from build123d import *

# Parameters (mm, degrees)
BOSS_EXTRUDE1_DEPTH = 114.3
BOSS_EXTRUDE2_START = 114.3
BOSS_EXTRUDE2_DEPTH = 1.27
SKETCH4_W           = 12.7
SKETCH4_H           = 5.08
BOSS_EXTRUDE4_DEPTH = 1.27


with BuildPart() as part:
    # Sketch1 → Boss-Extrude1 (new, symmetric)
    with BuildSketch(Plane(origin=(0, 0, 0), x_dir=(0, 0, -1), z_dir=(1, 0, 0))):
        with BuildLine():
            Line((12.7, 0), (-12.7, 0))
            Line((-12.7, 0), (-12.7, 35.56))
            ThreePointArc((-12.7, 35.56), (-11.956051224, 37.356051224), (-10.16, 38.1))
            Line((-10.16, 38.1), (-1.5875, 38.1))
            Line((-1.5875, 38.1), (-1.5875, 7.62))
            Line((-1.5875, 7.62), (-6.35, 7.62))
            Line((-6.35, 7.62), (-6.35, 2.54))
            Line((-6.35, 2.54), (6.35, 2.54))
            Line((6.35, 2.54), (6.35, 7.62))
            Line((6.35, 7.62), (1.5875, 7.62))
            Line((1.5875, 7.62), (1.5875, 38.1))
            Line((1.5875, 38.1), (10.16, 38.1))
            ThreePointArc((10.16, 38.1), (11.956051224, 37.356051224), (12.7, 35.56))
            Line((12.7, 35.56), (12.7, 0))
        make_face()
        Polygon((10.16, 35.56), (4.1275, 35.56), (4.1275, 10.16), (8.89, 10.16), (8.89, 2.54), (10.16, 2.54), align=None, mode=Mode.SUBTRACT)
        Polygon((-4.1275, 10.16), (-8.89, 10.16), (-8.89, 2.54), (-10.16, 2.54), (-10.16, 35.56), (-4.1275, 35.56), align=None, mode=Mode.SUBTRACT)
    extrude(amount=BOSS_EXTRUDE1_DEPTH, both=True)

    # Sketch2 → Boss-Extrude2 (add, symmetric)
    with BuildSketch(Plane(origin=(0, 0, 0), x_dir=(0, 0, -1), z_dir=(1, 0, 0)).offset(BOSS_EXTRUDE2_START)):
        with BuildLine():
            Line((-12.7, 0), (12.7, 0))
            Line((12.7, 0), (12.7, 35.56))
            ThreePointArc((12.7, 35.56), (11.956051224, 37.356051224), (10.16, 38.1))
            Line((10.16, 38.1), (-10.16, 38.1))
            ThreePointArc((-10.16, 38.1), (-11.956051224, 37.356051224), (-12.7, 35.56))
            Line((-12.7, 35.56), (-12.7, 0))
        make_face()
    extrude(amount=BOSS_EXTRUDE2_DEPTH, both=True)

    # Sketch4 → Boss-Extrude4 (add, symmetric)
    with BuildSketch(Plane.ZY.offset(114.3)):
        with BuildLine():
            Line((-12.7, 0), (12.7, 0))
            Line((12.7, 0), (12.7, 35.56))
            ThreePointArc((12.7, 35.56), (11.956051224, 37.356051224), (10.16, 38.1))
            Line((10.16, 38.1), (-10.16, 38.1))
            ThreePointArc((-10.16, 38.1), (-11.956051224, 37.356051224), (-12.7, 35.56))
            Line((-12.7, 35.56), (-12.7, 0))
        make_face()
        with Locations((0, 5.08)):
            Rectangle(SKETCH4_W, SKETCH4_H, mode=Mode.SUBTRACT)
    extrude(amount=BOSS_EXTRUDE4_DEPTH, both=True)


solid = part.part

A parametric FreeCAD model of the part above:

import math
import FreeCAD as App
import Part
import Sketcher
from FreeCAD import Vector
Q = App.Units.Quantity

doc = App.newDocument("Part")
params = doc.addObject("Spreadsheet::Sheet", "Params")
for row, (alias, value) in enumerate([
    ("sketch1_radius", "0.1 in"),
    ("sketch1_width", "1 in"),
    ("sketch1_width2", "1.4 in"),
    ("sketch1_width3", "1.2 in"),
    ("sketch1_width4", "0.2 in"),
    ("pad1_length", "9 in"),
    ("sketch2_radius", "0.1 in"),
    ("sketch2_height", "1 in"),
    ("sketch2_width", "1.4 in"),
    ("pad2_length", "0.1 in"),
    ("sketch3_radius", "0.1 in"),
    ("sketch3_height", "1 in"),
    ("sketch3_width", "1.4 in"),
    ("sketch3_width2", "0.2 in"),
    ("sketch3_height2", "0.5 in"),
    ("pad3_length", "0.1 in"),
], start=1):
    params.set(f"A{row}", alias)
    params.set(f"B{row}", "=" + value)
    params.setAlias(f"B{row}", alias)

body = doc.addObject("PartDesign::Body", "Body")

sketch1 = doc.addObject("Sketcher::SketchObject", "Sketch")
body.addObject(sketch1)
sketch1.AttachmentSupport = (doc.YZ_Plane, [""])
sketch1.MapMode = "FlatFace"
sketch1.addGeometry([
    Part.LineSegment(Vector(0, 12.7, 0), Vector(0, -12.7, 0)),
    Part.LineSegment(Vector(0, -12.7, 0), Vector(35.6, -12.7, 0)),
    Part.ArcOfCircle(Part.Circle(Vector(35.6, -10.2, 0), Vector(0, 0, 1), 2.5), math.radians(-90), math.radians(0)),
    Part.LineSegment(Vector(38.1, -10.2, 0), Vector(38.1, -1.6, 0)),
    Part.LineSegment(Vector(38.1, -1.6, 0), Vector(7.6, -1.6, 0)),
    Part.LineSegment(Vector(7.6, -1.6, 0), Vector(7.6, -6.3, 0)),
    Part.LineSegment(Vector(7.6, -6.3, 0), Vector(2.5, -6.3, 0)),
    Part.LineSegment(Vector(2.5, -6.3, 0), Vector(2.5, 6.3, 0)),
    Part.LineSegment(Vector(2.5, 6.3, 0), Vector(7.6, 6.3, 0)),
    Part.LineSegment(Vector(7.6, 6.3, 0), Vector(7.6, 1.6, 0)),
    Part.LineSegment(Vector(7.6, 1.6, 0), Vector(38.1, 1.6, 0)),
    Part.LineSegment(Vector(38.1, 1.6, 0), Vector(38.1, 10.2, 0)),
    Part.ArcOfCircle(Part.Circle(Vector(35.6, 10.2, 0), Vector(0, 0, 1), 2.5), math.radians(0), math.radians(90)),
    Part.LineSegment(Vector(35.6, 12.7, 0), Vector(0, 12.7, 0)),
    Part.LineSegment(Vector(35.6, -10.2, 0), Vector(2.5, -10.2, 0)),
    Part.LineSegment(Vector(2.5, -10.2, 0), Vector(2.5, -8.9, 0)),
    Part.LineSegment(Vector(2.5, -8.9, 0), Vector(10.2, -8.9, 0)),
    Part.LineSegment(Vector(10.2, -8.9, 0), Vector(10.2, -4.1, 0)),
    Part.LineSegment(Vector(10.2, -4.1, 0), Vector(35.6, -4.1, 0)),
    Part.LineSegment(Vector(35.6, -4.1, 0), Vector(35.6, -10.2, 0)),
    Part.LineSegment(Vector(10.2, 4.1, 0), Vector(10.2, 8.9, 0)),
    Part.LineSegment(Vector(10.2, 8.9, 0), Vector(2.5, 8.9, 0)),
    Part.LineSegment(Vector(2.5, 8.9, 0), Vector(2.5, 10.2, 0)),
    Part.LineSegment(Vector(2.5, 10.2, 0), Vector(35.6, 10.2, 0)),
    Part.LineSegment(Vector(35.6, 10.2, 0), Vector(35.6, 4.1, 0)),
    Part.LineSegment(Vector(35.6, 4.1, 0), Vector(10.2, 4.1, 0)),
], False)
sketch1.addConstraint([
    Sketcher.Constraint("Coincident", 0, 2, 1, 1),
    Sketcher.Constraint("Tangent", 1, 2, 2, 1),
    Sketcher.Constraint("Tangent", 2, 2, 3, 1),
    Sketcher.Constraint("Coincident", 3, 2, 4, 1),
    Sketcher.Constraint("Coincident", 4, 2, 5, 1),
    Sketcher.Constraint("Coincident", 5, 2, 6, 1),
    Sketcher.Constraint("Coincident", 6, 2, 7, 1),
    Sketcher.Constraint("Coincident", 7, 2, 8, 1),
    Sketcher.Constraint("Coincident", 8, 2, 9, 1),
    Sketcher.Constraint("Coincident", 9, 2, 10, 1),
    Sketcher.Constraint("Coincident", 10, 2, 11, 1),
    Sketcher.Constraint("Tangent", 11, 2, 12, 1),
    Sketcher.Constraint("Tangent", 12, 2, 13, 1),
    Sketcher.Constraint("Coincident", 13, 2, 0, 1),
    Sketcher.Constraint("Coincident", 14, 2, 15, 1),
    Sketcher.Constraint("Coincident", 15, 2, 16, 1),
    Sketcher.Constraint("Coincident", 16, 2, 17, 1),
    Sketcher.Constraint("Coincident", 17, 2, 18, 1),
    Sketcher.Constraint("Coincident", 18, 2, 19, 1),
    Sketcher.Constraint("Coincident", 19, 2, 14, 1),
    Sketcher.Constraint("Coincident", 20, 2, 21, 1),
    Sketcher.Constraint("Coincident", 21, 2, 22, 1),
    Sketcher.Constraint("Coincident", 22, 2, 23, 1),
    Sketcher.Constraint("Coincident", 23, 2, 24, 1),
    Sketcher.Constraint("Coincident", 24, 2, 25, 1),
    Sketcher.Constraint("Coincident", 25, 2, 20, 1),
    Sketcher.Constraint("Vertical", 0),
    Sketcher.Constraint("Horizontal", 1),
    Sketcher.Constraint("Vertical", 3),
    Sketcher.Constraint("Horizontal", 4),
    Sketcher.Constraint("Vertical", 5),
    Sketcher.Constraint("Horizontal", 6),
    Sketcher.Constraint("Vertical", 7),
    Sketcher.Constraint("Horizontal", 8),
    Sketcher.Constraint("Vertical", 9),
    Sketcher.Constraint("Horizontal", 10),
    Sketcher.Constraint("Vertical", 11),
    Sketcher.Constraint("Horizontal", 13),
    Sketcher.Constraint("Horizontal", 14),
    Sketcher.Constraint("Vertical", 15),
    Sketcher.Constraint("Horizontal", 16),
    Sketcher.Constraint("Vertical", 17),
    Sketcher.Constraint("Horizontal", 18),
    Sketcher.Constraint("Vertical", 19),
    Sketcher.Constraint("Vertical", 20),
    Sketcher.Constraint("Horizontal", 21),
    Sketcher.Constraint("Vertical", 22),
    Sketcher.Constraint("Horizontal", 23),
    Sketcher.Constraint("Vertical", 24),
    Sketcher.Constraint("Horizontal", 25),
    Sketcher.Constraint("Coincident", 19, 2, 2, 3),
    Sketcher.Constraint("Coincident", 23, 2, 12, 3),
    Sketcher.Constraint("Equal", 2, 12),
    Sketcher.Constraint("Symmetric", 0, 2, 13, 2, -1, 1),
    Sketcher.Constraint("Symmetric", 5, 2, 8, 2, -1),
    Sketcher.Constraint("Symmetric", 3, 2, 10, 2, -1),
    Sketcher.Constraint("Symmetric", 16, 2, 20, 2, -1),
    Sketcher.Constraint("Vertical", 7, 2, 14, 2),
    Sketcher.Constraint("Vertical", 15, 2, 21, 2),
    Sketcher.Constraint("Equal", 25, 0),
    Sketcher.Constraint("Equal", 9, 17),
    Sketcher.Constraint("Equal", 17, 20),
    Sketcher.Constraint("Radius", 2, Q("0.1 in")),
    Sketcher.Constraint("DistanceX", 18, 1, 18, 2, Q("1 in")),
    Sketcher.Constraint("DistanceX", 1, 1, 1, 2, Q("1.4 in")),
    Sketcher.Constraint("DistanceX", 4, 2, 4, 1, Q("1.2 in")),
    Sketcher.Constraint("DistanceX", 6, 2, 6, 1, Q("0.2 in")),
    Sketcher.Constraint("DistanceY", 7, 1, 7, 2, Q("0.5 in")),
    Sketcher.Constraint("DistanceY", 15, 1, 15, 2, Q("0.05 in")),
    Sketcher.Constraint("DistanceY", 5, 2, 5, 1, Q("0.1875 in")),
])
sketch1.setExpression("Constraints[62]", "Params.sketch1_radius")
sketch1.setExpression("Constraints[63]", "Params.sketch1_width")
sketch1.setExpression("Constraints[64]", "Params.sketch1_width2")
sketch1.setExpression("Constraints[65]", "Params.sketch1_width3")
sketch1.setExpression("Constraints[66]", "Params.sketch1_width4")
pad1 = doc.addObject("PartDesign::Pad", "Pad")
body.addObject(pad1)
pad1.Profile = sketch1
pad1.setExpression("Length", "Params.pad1_length")
pad1.Midplane = True

sketch2 = doc.addObject("Sketcher::SketchObject", "Sketch001")
body.addObject(sketch2)
sketch2.AttachmentSupport = (doc.YZ_Plane, [""])
sketch2.MapMode = "FlatFace"
sketch2.AttachmentOffset = App.Placement(Vector(0, 0, 4.5 * 25.4), App.Rotation())
sketch2.addGeometry([
    Part.LineSegment(Vector(0, 12.7, 0), Vector(0, -12.7, 0)),
    Part.LineSegment(Vector(0, -12.7, 0), Vector(35.6, -12.7, 0)),
    Part.ArcOfCircle(Part.Circle(Vector(35.6, -10.2, 0), Vector(0, 0, 1), 2.5), math.radians(-90), math.radians(0)),
    Part.LineSegment(Vector(38.1, -10.2, 0), Vector(38.1, 10.2, 0)),
    Part.ArcOfCircle(Part.Circle(Vector(35.6, 10.2, 0), Vector(0, 0, 1), 2.5), math.radians(0), math.radians(90)),
    Part.LineSegment(Vector(35.6, 12.7, 0), Vector(0, 12.7, 0)),
], False)
sketch2.addConstraint([
    Sketcher.Constraint("Coincident", 0, 2, 1, 1),
    Sketcher.Constraint("Tangent", 1, 2, 2, 1),
    Sketcher.Constraint("Tangent", 2, 2, 3, 1),
    Sketcher.Constraint("Tangent", 3, 2, 4, 1),
    Sketcher.Constraint("Tangent", 4, 2, 5, 1),
    Sketcher.Constraint("Coincident", 5, 2, 0, 1),
    Sketcher.Constraint("Vertical", 0),
    Sketcher.Constraint("Horizontal", 1),
    Sketcher.Constraint("Vertical", 3),
    Sketcher.Constraint("Horizontal", 5),
    Sketcher.Constraint("Equal", 2, 4),
    Sketcher.Constraint("Symmetric", 0, 2, 5, 2, -1, 1),
    Sketcher.Constraint("Radius", 2, Q("0.1 in")),
    Sketcher.Constraint("DistanceY", 0, 2, 0, 1, Q("1 in")),
    Sketcher.Constraint("DistanceX", 1, 1, 1, 2, Q("1.4 in")),
])
sketch2.setExpression("Constraints[12]", "Params.sketch2_radius")
sketch2.setExpression("Constraints[13]", "Params.sketch2_height")
sketch2.setExpression("Constraints[14]", "Params.sketch2_width")
pad2 = doc.addObject("PartDesign::Pad", "Pad001")
body.addObject(pad2)
pad2.Profile = sketch2
pad2.setExpression("Length", "Params.pad2_length")
pad2.Midplane = True

sketch3 = doc.addObject("Sketcher::SketchObject", "Sketch002")
body.addObject(sketch3)
sketch3.AttachmentSupport = (doc.YZ_Plane, [""])
sketch3.MapMode = "FlatFace"
sketch3.AttachmentOffset = App.Placement(Vector(0, 0, -4.5 * 25.4), App.Rotation())
sketch3.addGeometry([
    Part.LineSegment(Vector(0, -12.7, 0), Vector(0, 12.7, 0)),
    Part.LineSegment(Vector(0, 12.7, 0), Vector(35.6, 12.7, 0)),
    Part.ArcOfCircle(Part.Circle(Vector(35.6, 10.2, 0), Vector(0, 0, 1), 2.5), math.radians(0), math.radians(90)),
    Part.LineSegment(Vector(38.1, 10.2, 0), Vector(38.1, -10.2, 0)),
    Part.ArcOfCircle(Part.Circle(Vector(35.6, -10.2, 0), Vector(0, 0, 1), 2.5), math.radians(-90), math.radians(0)),
    Part.LineSegment(Vector(35.6, -12.7, 0), Vector(0, -12.7, 0)),
    Part.LineSegment(Vector(2.5, 6.3, 0), Vector(2.5, -6.3, 0)),
    Part.LineSegment(Vector(2.5, -6.3, 0), Vector(7.6, -6.3, 0)),
    Part.LineSegment(Vector(7.6, -6.3, 0), Vector(7.6, 6.3, 0)),
    Part.LineSegment(Vector(7.6, 6.3, 0), Vector(2.5, 6.3, 0)),
], False)
sketch3.addConstraint([
    Sketcher.Constraint("Coincident", 0, 2, 1, 1),
    Sketcher.Constraint("Tangent", 1, 2, 2, 2),
    Sketcher.Constraint("Tangent", 2, 1, 3, 1),
    Sketcher.Constraint("Tangent", 3, 2, 4, 2),
    Sketcher.Constraint("Tangent", 4, 1, 5, 1),
    Sketcher.Constraint("Coincident", 5, 2, 0, 1),
    Sketcher.Constraint("Coincident", 6, 2, 7, 1),
    Sketcher.Constraint("Coincident", 7, 2, 8, 1),
    Sketcher.Constraint("Coincident", 8, 2, 9, 1),
    Sketcher.Constraint("Coincident", 9, 2, 6, 1),
    Sketcher.Constraint("Vertical", 0),
    Sketcher.Constraint("Horizontal", 1),
    Sketcher.Constraint("Vertical", 3),
    Sketcher.Constraint("Horizontal", 5),
    Sketcher.Constraint("Vertical", 6),
    Sketcher.Constraint("Horizontal", 7),
    Sketcher.Constraint("Vertical", 8),
    Sketcher.Constraint("Horizontal", 9),
    Sketcher.Constraint("Equal", 2, 4),
    Sketcher.Constraint("Symmetric", 0, 2, 5, 2, -1, 1),
    Sketcher.Constraint("Radius", 2, Q("0.1 in")),
    Sketcher.Constraint("DistanceY", 0, 1, 0, 2, Q("1 in")),
    Sketcher.Constraint("DistanceX", 1, 1, 1, 2, Q("1.4 in")),
    Sketcher.Constraint("DistanceX", 7, 1, 7, 2, Q("0.2 in")),
    Sketcher.Constraint("DistanceY", 6, 2, 6, 1, Q("0.5 in")),
    Sketcher.Constraint("DistanceX", -1, 1, 6, 2, Q("0.1 in")),
    Sketcher.Constraint("DistanceY", 6, 2, -1, 1, Q("0.25 in")),
])
sketch3.setExpression("Constraints[20]", "Params.sketch3_radius")
sketch3.setExpression("Constraints[21]", "Params.sketch3_height")
sketch3.setExpression("Constraints[22]", "Params.sketch3_width")
sketch3.setExpression("Constraints[23]", "Params.sketch3_width2")
sketch3.setExpression("Constraints[24]", "Params.sketch3_height2")
pad3 = doc.addObject("PartDesign::Pad", "Pad002")
body.addObject(pad3)
pad3.Profile = sketch3
pad3.setExpression("Length", "Params.pad3_length")
pad3.Midplane = True

doc.recompute()
